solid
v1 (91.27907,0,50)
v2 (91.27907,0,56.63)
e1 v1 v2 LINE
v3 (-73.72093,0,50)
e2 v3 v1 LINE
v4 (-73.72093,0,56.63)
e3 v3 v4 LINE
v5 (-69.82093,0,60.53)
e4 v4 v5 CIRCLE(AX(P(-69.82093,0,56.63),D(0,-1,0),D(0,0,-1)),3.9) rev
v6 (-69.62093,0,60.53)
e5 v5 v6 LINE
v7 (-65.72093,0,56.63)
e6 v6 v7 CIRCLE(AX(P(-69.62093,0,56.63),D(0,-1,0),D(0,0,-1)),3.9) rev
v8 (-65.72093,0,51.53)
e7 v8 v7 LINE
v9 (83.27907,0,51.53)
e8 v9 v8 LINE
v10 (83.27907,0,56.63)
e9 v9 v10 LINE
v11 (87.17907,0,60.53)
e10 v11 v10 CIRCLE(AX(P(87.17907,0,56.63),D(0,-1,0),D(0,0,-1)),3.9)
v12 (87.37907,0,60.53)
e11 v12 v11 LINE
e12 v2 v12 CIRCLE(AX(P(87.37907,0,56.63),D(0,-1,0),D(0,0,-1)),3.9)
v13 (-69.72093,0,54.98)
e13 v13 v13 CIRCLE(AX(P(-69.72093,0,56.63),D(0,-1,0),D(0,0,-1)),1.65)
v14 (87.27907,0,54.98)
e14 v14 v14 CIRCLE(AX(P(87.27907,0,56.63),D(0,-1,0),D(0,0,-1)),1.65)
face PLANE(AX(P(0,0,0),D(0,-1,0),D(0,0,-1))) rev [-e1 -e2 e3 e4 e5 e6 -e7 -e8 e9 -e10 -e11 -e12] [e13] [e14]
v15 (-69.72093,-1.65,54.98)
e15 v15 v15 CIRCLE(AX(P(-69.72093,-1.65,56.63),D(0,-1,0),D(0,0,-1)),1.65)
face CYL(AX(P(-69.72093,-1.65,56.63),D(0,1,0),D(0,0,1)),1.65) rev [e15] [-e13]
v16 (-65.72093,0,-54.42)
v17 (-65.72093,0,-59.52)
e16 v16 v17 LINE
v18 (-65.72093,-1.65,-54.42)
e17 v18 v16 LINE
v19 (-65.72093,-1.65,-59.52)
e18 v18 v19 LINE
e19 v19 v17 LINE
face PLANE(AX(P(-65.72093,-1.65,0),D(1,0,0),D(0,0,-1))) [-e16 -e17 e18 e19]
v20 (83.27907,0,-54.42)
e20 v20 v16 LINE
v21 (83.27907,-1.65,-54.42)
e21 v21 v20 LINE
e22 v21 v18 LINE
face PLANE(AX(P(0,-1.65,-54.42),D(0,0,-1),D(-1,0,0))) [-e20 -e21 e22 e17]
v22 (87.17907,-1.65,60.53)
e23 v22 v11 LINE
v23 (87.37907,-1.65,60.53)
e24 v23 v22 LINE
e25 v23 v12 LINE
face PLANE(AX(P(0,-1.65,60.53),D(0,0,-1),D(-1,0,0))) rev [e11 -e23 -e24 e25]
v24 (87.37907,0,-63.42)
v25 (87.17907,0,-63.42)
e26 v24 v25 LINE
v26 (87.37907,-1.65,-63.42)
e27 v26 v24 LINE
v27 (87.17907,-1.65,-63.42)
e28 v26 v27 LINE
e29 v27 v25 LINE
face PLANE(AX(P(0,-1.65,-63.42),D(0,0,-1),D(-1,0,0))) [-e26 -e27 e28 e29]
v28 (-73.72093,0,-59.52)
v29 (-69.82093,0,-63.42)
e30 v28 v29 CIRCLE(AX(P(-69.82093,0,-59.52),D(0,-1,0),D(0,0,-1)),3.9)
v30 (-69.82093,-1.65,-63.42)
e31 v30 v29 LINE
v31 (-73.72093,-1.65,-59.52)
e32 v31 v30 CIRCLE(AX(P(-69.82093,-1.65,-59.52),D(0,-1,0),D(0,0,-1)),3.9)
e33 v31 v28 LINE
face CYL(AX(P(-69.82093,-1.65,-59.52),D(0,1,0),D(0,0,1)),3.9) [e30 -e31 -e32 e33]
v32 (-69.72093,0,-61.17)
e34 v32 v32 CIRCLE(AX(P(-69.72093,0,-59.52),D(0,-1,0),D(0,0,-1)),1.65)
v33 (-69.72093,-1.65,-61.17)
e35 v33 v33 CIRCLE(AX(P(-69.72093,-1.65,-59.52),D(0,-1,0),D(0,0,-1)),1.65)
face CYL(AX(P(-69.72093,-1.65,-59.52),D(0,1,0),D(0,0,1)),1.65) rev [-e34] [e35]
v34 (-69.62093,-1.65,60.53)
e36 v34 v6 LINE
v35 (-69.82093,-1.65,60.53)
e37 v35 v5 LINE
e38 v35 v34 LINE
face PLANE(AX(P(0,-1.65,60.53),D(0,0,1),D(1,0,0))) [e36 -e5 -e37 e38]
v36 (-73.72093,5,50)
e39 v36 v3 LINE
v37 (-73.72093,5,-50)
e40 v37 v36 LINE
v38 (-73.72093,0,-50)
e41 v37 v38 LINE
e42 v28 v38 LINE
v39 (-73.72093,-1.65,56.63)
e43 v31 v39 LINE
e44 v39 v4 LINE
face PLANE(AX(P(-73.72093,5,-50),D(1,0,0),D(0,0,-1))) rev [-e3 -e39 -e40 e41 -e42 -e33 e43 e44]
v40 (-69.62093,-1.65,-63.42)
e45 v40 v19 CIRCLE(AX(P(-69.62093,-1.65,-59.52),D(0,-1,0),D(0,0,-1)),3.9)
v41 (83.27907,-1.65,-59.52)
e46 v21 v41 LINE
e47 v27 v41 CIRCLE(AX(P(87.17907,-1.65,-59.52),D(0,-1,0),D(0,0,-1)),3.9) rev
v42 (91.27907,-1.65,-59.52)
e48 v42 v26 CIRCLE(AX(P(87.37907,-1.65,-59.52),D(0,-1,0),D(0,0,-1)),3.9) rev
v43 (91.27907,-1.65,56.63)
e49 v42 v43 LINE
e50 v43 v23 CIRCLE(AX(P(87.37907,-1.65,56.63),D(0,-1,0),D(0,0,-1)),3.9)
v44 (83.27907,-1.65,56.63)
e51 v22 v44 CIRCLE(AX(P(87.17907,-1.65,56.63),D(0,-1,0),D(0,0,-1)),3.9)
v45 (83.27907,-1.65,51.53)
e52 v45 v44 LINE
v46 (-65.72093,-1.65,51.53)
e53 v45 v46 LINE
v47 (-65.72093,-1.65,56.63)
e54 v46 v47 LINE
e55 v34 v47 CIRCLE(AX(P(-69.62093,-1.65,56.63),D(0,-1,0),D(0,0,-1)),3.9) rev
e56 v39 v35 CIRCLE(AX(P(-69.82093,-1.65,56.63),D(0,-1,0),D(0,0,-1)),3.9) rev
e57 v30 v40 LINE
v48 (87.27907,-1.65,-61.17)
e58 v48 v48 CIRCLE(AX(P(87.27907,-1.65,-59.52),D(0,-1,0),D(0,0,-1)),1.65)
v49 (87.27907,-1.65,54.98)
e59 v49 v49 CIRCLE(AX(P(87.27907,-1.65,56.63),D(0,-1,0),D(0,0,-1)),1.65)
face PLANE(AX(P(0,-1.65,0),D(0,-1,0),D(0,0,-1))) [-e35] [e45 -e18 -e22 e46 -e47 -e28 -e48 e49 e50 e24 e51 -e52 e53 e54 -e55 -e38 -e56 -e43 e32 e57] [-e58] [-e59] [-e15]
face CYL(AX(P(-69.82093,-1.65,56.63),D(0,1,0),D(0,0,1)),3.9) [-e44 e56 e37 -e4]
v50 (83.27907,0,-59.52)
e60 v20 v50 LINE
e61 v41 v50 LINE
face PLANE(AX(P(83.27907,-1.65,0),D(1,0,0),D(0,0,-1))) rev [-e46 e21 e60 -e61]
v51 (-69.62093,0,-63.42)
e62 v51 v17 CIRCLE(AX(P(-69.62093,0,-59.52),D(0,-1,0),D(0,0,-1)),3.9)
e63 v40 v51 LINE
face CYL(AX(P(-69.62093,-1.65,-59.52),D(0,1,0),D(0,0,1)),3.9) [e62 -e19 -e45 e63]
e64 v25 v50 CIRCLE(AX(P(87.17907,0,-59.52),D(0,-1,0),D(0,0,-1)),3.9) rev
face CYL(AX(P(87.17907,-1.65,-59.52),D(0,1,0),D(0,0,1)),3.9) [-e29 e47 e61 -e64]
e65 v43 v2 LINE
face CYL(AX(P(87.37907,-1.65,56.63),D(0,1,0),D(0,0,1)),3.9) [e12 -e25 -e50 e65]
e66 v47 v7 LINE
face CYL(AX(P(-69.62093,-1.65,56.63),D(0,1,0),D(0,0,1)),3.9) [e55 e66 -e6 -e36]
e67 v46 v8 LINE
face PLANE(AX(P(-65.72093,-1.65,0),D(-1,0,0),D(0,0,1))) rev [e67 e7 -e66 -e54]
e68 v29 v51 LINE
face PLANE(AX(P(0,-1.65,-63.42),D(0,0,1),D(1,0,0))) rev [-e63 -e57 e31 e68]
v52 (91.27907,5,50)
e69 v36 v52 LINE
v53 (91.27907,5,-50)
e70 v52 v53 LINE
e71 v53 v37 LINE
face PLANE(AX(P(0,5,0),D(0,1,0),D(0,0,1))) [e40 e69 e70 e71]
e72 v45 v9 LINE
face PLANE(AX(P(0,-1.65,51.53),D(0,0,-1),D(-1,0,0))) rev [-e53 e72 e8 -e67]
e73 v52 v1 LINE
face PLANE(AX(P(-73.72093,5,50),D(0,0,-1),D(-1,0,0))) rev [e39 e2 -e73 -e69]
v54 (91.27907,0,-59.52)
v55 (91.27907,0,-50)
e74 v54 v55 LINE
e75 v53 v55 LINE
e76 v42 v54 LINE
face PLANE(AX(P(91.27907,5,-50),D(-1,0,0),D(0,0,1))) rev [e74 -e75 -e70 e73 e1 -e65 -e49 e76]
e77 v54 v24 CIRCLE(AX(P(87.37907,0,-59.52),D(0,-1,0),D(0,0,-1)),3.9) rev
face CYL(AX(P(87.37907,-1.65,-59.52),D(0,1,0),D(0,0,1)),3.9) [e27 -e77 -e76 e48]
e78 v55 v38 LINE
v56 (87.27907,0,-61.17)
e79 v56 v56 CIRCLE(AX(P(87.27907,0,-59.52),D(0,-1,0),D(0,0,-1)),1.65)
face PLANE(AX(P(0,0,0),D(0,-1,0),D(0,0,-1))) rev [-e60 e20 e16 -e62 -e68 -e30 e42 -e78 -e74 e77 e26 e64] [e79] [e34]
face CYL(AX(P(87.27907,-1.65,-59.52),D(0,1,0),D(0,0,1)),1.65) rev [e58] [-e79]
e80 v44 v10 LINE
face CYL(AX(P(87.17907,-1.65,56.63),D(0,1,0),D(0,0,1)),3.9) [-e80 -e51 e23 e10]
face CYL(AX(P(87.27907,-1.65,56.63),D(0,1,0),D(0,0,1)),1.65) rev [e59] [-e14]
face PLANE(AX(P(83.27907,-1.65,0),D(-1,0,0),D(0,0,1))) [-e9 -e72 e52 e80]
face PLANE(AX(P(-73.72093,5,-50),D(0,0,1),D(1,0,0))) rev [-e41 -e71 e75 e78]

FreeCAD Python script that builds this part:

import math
import FreeCAD as App
import Part
import Sketcher
from FreeCAD import Vector
Q = App.Units.Quantity

doc = App.newDocument("Part")
body = doc.addObject("PartDesign::Body", "Body")

# Sketch on XZ plane
sketch1 = body.newObject("Sketcher::SketchObject", "Sketch")
sketch1.AttachmentSupport = (doc.getObject("XZ_Plane"), [""])
sketch1.MapMode = "FlatFace"
sketch1.addGeometry([
    Part.LineSegment(Vector(-74, -50, 0), Vector(-74, 50, 0)),
    Part.LineSegment(Vector(-74, 50, 0), Vector(91, 50, 0)),
    Part.LineSegment(Vector(91, 50, 0), Vector(91, -50, 0)),
    Part.LineSegment(Vector(91, -50, 0), Vector(-74, -50, 0)),
], False)
sketch1.addConstraint([
    Sketcher.Constraint("Coincident", 0, 2, 1, 1),
    Sketcher.Constraint("Coincident", 1, 2, 2, 1),
    Sketcher.Constraint("Coincident", 2, 2, 3, 1),
    Sketcher.Constraint("Coincident", 3, 2, 0, 1),
    Sketcher.Constraint("Vertical", 0),
    Sketcher.Constraint("Horizontal", 1),
    Sketcher.Constraint("Vertical", 2),
    Sketcher.Constraint("Horizontal", 3),
    Sketcher.Constraint("DistanceX", 1, 1, 1, 2, Q("165 mm")),
    Sketcher.Constraint("DistanceY", 0, 1, 0, 2, Q("100 mm")),
    Sketcher.Constraint("DistanceY", -1, 1, 0, 2, Q("50 mm")),
    Sketcher.Constraint("DistanceX", 0, 2, -1, 1, Q("73.72093 mm")),
])
pad1 = body.newObject("PartDesign::Pad", "Pad")
pad1.Profile = sketch1
pad1.Length = 5
pad1.Reversed = True

# Sketch on XZ plane
sketch2 = body.newObject("Sketcher::SketchObject", "Sketch001")
sketch2.AttachmentSupport = (doc.getObject("XZ_Plane"), [""])
sketch2.MapMode = "FlatFace"
sketch2.addGeometry([
    Part.LineSegment(Vector(83.28, 56.63, 0), Vector(83.28, 51.53, 0)),  # 0
    Part.LineSegment(Vector(83.28, 51.53, 0), Vector(-65.72, 51.53, 0)),  # 1
    Part.LineSegment(Vector(-65.72, 51.53, 0), Vector(-65.72, 56.63, 0)),  # 2
    Part.ArcOfCircle(Part.Circle(Vector(-69.62, 56.63, 0), Vector(0, 0, 1), 3.9), math.radians(0), math.radians(90)),  # 3
    Part.LineSegment(Vector(-69.62, 60.53, 0), Vector(-69.82, 60.53, 0)),  # 4
    Part.ArcOfCircle(Part.Circle(Vector(-69.82, 56.63, 0), Vector(0, 0, 1), 3.9), math.radians(90), math.radians(180)),  # 5
    Part.LineSegment(Vector(-73.72, 56.63, 0), Vector(-73.72, -59.52, 0)),  # 6
    Part.ArcOfCircle(Part.Circle(Vector(-69.82, -59.52, 0), Vector(0, 0, 1), 3.9), math.radians(180), math.radians(270)),  # 7
    Part.LineSegment(Vector(-69.82, -63.42, 0), Vector(-69.62, -63.42, 0)),  # 8
    Part.ArcOfCircle(Part.Circle(Vector(-69.62, -59.52, 0), Vector(0, 0, 1), 3.9), math.radians(-90), math.radians(0)),  # 9
    Part.LineSegment(Vector(-65.72, -59.52, 0), Vector(-65.72, -54.42, 0)),  # 10
    Part.LineSegment(Vector(-65.72, -54.42, 0), Vector(83.28, -54.42, 0)),  # 11
    Part.LineSegment(Vector(83.28, -54.42, 0), Vector(83.28, -59.52, 0)),  # 12
    Part.ArcOfCircle(Part.Circle(Vector(87.18, -59.52, 0), Vector(0, 0, 1), 3.9), math.radians(180), math.radians(270)),  # 13
    Part.LineSegment(Vector(87.18, -63.42, 0), Vector(87.38, -63.42, 0)),  # 14
    Part.ArcOfCircle(Part.Circle(Vector(87.38, -59.52, 0), Vector(0, 0, 1), 3.9), math.radians(-90), math.radians(0)),  # 15
    Part.LineSegment(Vector(91.28, -59.52, 0), Vector(91.28, 56.63, 0)),  # 16
    Part.ArcOfCircle(Part.Circle(Vector(87.38, 56.63, 0), Vector(0, 0, 1), 3.9), math.radians(0), math.radians(90)),  # 17
    Part.LineSegment(Vector(87.38, 60.53, 0), Vector(87.18, 60.53, 0)),  # 18
    Part.ArcOfCircle(Part.Circle(Vector(87.18, 56.63, 0), Vector(0, 0, 1), 3.9), math.radians(90), math.radians(180)),  # 19
    Part.Circle(Vector(87.28, 56.63, 0), Vector(0, 0, 1), 1.65),  # 20
    Part.Circle(Vector(-69.72, 56.63, 0), Vector(0, 0, 1), 1.65),  # 21
    Part.Circle(Vector(-69.72, -59.52, 0), Vector(0, 0, 1), 1.65),  # 22
    Part.Circle(Vector(87.28, -59.52, 0), Vector(0, 0, 1), 1.65),  # 23
], False)
sketch2.addConstraint([
    Sketcher.Constraint("Coincident", 0, 2, 1, 1),
    Sketcher.Constraint("Coincident", 1, 2, 2, 1),
    Sketcher.Constraint("Tangent", 2, 2, 3, 1),
    Sketcher.Constraint("Tangent", 3, 2, 4, 1),
    Sketcher.Constraint("Tangent", 4, 2, 5, 1),
    Sketcher.Constraint("Tangent", 5, 2, 6, 1),
    Sketcher.Constraint("Tangent", 6, 2, 7, 1),
    Sketcher.Constraint("Tangent", 7, 2, 8, 1),
    Sketcher.Constraint("Tangent", 8, 2, 9, 1),
    Sketcher.Constraint("Tangent", 9, 2, 10, 1),
    Sketcher.Constraint("Coincident", 10, 2, 11, 1),
    Sketcher.Constraint("Coincident", 11, 2, 12, 1),
    Sketcher.Constraint("Tangent", 12, 2, 13, 1),
    Sketcher.Constraint("Tangent", 13, 2, 14, 1),
    Sketcher.Constraint("Tangent", 14, 2, 15, 1),
    Sketcher.Constraint("Tangent", 15, 2, 16, 1),
    Sketcher.Constraint("Tangent", 16, 2, 17, 1),
    Sketcher.Constraint("Tangent", 17, 2, 18, 1),
    Sketcher.Constraint("Tangent", 18, 2, 19, 1),
    Sketcher.Constraint("Tangent", 19, 2, 0, 1),
    Sketcher.Constraint("Vertical", 0),
    Sketcher.Constraint("Horizontal", 1),
    Sketcher.Constraint("Vertical", 2),
    Sketcher.Constraint("Horizontal", 4),
    Sketcher.Constraint("Vertical", 6),
    Sketcher.Constraint("Horizontal", 8),
    Sketcher.Constraint("Vertical", 10),
    Sketcher.Constraint("Horizontal", 11),
    Sketcher.Constraint("Vertical", 12),
    Sketcher.Constraint("Horizontal", 14),
    Sketcher.Constraint("Vertical", 16),
    Sketcher.Constraint("Horizontal", 18),
    Sketcher.Constraint("Equal", 3, 5),
    Sketcher.Constraint("Equal", 5, 7),
    Sketcher.Constraint("Equal", 7, 9),
    Sketcher.Constraint("Equal", 9, 13),
    Sketcher.Constraint("Equal", 13, 15),
    Sketcher.Constraint("Equal", 15, 17),
    Sketcher.Constraint("Equal", 17, 19),
    Sketcher.Constraint("Equal", 20, 21),
    Sketcher.Constraint("Equal", 21, 22),
    Sketcher.Constraint("Equal", 22, 23),
    Sketcher.Constraint("Horizontal", 9, 3, 13, 3),
    Sketcher.Constraint("Horizontal", 5, 3, 17, 3),
    Sketcher.Constraint("Horizontal", 19, 3, 20, 3),
    Sketcher.Constraint("Horizontal", 20, 3, 21, 3),
    Sketcher.Constraint("Horizontal", 15, 3, 22, 3),
    Sketcher.Constraint("Horizontal", 22, 3, 23, 3),
    Sketcher.Constraint("Vertical", 3, 3, 9, 3),
    Sketcher.Constraint("Vertical", 13, 3, 19, 3),
    Sketcher.Constraint("Vertical", 21, 3, 22, 3),
    Sketcher.Constraint("Vertical", 20, 3, 23, 3),
    Sketcher.Constraint("Equal", 8, 14),
    Sketcher.Constraint("Equal", 2, 10),
    Sketcher.Constraint("Diameter", 20, Q("3.3 mm")),
    Sketcher.Constraint("Radius", 3, Q("3.9 mm")),
    Sketcher.Constraint("DistanceX", 1, 2, 1, 1, Q("149 mm")),
    Sketcher.Constraint("DistanceX", 4, 2, 4, 1, Q("0.2 mm")),
    Sketcher.Constraint("DistanceY", 0, 2, 0, 1, Q("5.1 mm")),
    Sketcher.Constraint("DistanceX", 0, 2, 20, 3, Q("4 mm")),
    Sketcher.Constraint("DistanceX", 21, 3, 1, 2, Q("4 mm")),
    Sketcher.Constraint("DistanceY", 6, 2, 6, 1, Q("116.15 mm")),
    Sketcher.Constraint("DistanceY", -1, 1, 3, 3, Q("56.63 mm")),
    Sketcher.Constraint("DistanceX", 3, 3, -1, 1, Q("69.62093 mm")),
])
pad2 = body.newObject("PartDesign::Pad", "Pad001")
pad2.Profile = sketch2
pad2.Length = 1.65

doc.recompute()
